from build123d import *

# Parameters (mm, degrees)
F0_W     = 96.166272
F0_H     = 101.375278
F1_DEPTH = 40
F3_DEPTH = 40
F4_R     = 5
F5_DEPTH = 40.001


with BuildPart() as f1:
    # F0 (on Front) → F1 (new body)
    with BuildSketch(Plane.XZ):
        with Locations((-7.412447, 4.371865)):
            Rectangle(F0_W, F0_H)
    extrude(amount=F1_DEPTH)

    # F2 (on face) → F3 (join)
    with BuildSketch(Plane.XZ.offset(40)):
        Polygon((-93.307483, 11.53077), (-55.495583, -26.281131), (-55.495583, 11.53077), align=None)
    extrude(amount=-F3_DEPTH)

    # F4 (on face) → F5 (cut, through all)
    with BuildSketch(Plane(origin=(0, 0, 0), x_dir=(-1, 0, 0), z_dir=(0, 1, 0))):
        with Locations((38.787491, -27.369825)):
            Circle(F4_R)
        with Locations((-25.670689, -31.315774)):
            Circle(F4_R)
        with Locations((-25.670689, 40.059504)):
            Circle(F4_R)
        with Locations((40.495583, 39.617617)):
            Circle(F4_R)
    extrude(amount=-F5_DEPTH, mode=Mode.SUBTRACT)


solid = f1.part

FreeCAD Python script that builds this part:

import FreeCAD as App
import Part
import Sketcher


def add_polygon(sketch, points):
    """Adds a closed chain of lines whose ends are joined by coincident constraints."""
    first, n = sketch.GeometryCount, len(points)
    for a, b in zip(points, points[1:] + points[:1]):
        sketch.addGeometry(Part.LineSegment(App.Vector(*a, 0), App.Vector(*b, 0)), False)
    for i in range(n):
        sketch.addConstraint(Sketcher.Constraint("Coincident", first + i, 2, first + (i + 1) % n, 1))

doc = App.newDocument("Part")
body = doc.addObject("PartDesign::Body", "Body")

# Sketch on XZ plane
sketch1 = body.newObject("Sketcher::SketchObject", "Sketch")
sketch1.AttachmentSupport = (doc.getObject("XZ_Plane"), [""])
sketch1.MapMode = "FlatFace"
add_polygon(sketch1, [(-55.495583, 55.059504), (-55.495583, -46.315774), (40.670689, -46.315774), (40.670689, 55.059504)])  # lines 0-3
sketch1.addConstraint([
    Sketcher.Constraint("Vertical", 0),
    Sketcher.Constraint("Horizontal", 1),
    Sketcher.Constraint("Vertical", 2),
    Sketcher.Constraint("Horizontal", 3),
    Sketcher.Constraint("DistanceX", 1, 1, 1, 2, 96.166272),
    Sketcher.Constraint("DistanceY", 0, 2, 0, 1, 101.375278),
    Sketcher.Constraint("DistanceX", -1, 1, 1, 2, 40.670689),
    Sketcher.Constraint("DistanceY", 0, 2, -1, 1, 46.315774),
])
pad1 = body.newObject("PartDesign::Pad", "Pad")
pad1.Profile = sketch1
pad1.Length = 40

# Sketch on XZ plane
sketch2 = body.newObject("Sketcher::SketchObject", "Sketch001")
sketch2.AttachmentSupport = (doc.getObject("XZ_Plane"), [""])
sketch2.MapMode = "FlatFace"
sketch2.AttachmentOffset = App.Placement(App.Vector(0, 0, 40), App.Rotation())
add_polygon(sketch2, [(-93.307483, 11.53077), (-55.495583, -26.281131), (-55.495583, 11.53077)])  # lines 0-2
sketch2.addConstraint([
    Sketcher.Constraint("Vertical", 1),
    Sketcher.Constraint("Horizontal", 2),
    Sketcher.Constraint("Equal", 2, 1),
    Sketcher.Constraint("DistanceX", 2, 2, 2, 1, 37.8119),
    Sketcher.Constraint("DistanceY", 0, 2, -1, 1, 26.281131),
    Sketcher.Constraint("DistanceX", 0, 2, -1, 1, 55.495583),
])
pad2 = body.newObject("PartDesign::Pad", "Pad001")
pad2.Profile = sketch2
pad2.Length = 40
pad2.Reversed = True

# Sketch on XZ plane
sketch3 = body.newObject("Sketcher::SketchObject", "Sketch002")
sketch3.AttachmentSupport = (doc.getObject("XZ_Plane"), [""])
sketch3.MapMode = "FlatFace"
sketch3.addGeometry([
    Part.Circle(App.Vector(-38.787491, -27.369825, 0), App.Vector(0, 0, 1), 5),
    Part.Circle(App.Vector(25.670689, -31.315774, 0), App.Vector(0, 0, 1), 5),
    Part.Circle(App.Vector(25.670689, 40.059504, 0), App.Vector(0, 0, 1), 5),
    Part.Circle(App.Vector(-40.495583, 39.617617, 0), App.Vector(0, 0, 1), 5),
], False)
sketch3.addConstraint([
    Sketcher.Constraint("Equal", 0, 1),
    Sketcher.Constraint("Equal", 1, 2),
    Sketcher.Constraint("Equal", 2, 3),
    Sketcher.Constraint("Vertical", 1, 3, 2, 3),
    Sketcher.Constraint("Diameter", 0, 10.0),
    Sketcher.Constraint("DistanceX", 0, 3, -1, 1, 38.787491),
    Sketcher.Constraint("DistanceX", -1, 1, 1, 3, 25.670689),
    Sketcher.Constraint("DistanceY", 1, 3, 0, 3, 3.945949),
    Sketcher.Constraint("DistanceY", 0, 3, 2, 3, 67.429329),
    Sketcher.Constraint("DistanceY", 0, 3, 3, 3, 66.987442),
    Sketcher.Constraint("DistanceY", 0, 3, -1, 1, 27.369825),
    Sketcher.Constraint("DistanceX", 3, 3, -1, 1, 40.495583),
])
pocket1 = body.newObject("PartDesign::Pocket", "Pocket")
pocket1.Profile = sketch3
pocket1.Type = "ThroughAll"
pocket1.Reversed = True

doc.recompute()
